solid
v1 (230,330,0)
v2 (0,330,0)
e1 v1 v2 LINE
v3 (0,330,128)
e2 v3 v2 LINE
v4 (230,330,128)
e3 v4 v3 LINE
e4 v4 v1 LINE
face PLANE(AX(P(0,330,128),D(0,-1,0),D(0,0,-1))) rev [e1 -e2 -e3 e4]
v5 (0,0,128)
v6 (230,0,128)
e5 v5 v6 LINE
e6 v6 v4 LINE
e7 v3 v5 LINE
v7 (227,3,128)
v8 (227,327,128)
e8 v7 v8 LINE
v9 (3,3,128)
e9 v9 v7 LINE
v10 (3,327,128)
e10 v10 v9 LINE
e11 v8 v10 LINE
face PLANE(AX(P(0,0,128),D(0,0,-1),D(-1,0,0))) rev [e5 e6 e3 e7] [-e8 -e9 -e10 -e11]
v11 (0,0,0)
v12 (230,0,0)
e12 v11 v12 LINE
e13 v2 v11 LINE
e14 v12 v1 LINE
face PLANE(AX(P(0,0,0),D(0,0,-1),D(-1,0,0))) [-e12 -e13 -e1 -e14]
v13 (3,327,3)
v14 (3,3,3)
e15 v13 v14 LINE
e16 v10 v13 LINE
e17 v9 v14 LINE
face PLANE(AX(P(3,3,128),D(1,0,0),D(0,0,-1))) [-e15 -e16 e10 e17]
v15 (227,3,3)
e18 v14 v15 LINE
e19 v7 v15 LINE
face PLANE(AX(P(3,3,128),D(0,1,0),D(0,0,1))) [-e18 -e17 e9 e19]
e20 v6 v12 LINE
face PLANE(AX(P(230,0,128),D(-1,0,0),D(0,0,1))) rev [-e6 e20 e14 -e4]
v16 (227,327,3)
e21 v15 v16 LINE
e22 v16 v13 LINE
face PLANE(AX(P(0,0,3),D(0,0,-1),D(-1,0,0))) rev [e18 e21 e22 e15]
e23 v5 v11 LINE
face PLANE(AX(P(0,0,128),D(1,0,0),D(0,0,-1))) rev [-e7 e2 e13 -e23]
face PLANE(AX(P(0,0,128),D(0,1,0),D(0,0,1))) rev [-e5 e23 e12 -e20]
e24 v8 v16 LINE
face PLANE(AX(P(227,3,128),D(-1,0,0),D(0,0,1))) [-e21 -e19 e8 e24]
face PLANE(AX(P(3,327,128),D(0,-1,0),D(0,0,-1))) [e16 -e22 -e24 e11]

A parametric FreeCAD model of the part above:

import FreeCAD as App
import Part
import Sketcher
Q = App.Units.Quantity

doc = App.newDocument("Part")
body = doc.addObject("PartDesign::Body", "Body")

# Sketch on XY plane
sketch1 = body.newObject("Sketcher::SketchObject", "Sketch")
sketch1.AttachmentSupport = (doc.getObject("XY_Plane"), [""])
sketch1.MapMode = "FlatFace"
sketch1.addGeometry(Part.LineSegment(App.Vector(0, 330, 0), App.Vector(0, 0, 0)), False)
sketch1.addGeometry(Part.LineSegment(App.Vector(0, 0, 0), App.Vector(230, 0, 0)), False)
sketch1.addGeometry(Part.LineSegment(App.Vector(230, 0, 0), App.Vector(230, 330, 0)), False)
sketch1.addGeometry(Part.LineSegment(App.Vector(230, 330, 0), App.Vector(0, 330, 0)), False)
sketch1.addGeometry(Part.LineSegment(App.Vector(227, 3, 0), App.Vector(3, 3, 0)), False)
sketch1.addGeometry(Part.LineSegment(App.Vector(3, 3, 0), App.Vector(3, 327, 0)), False)
sketch1.addGeometry(Part.LineSegment(App.Vector(3, 327, 0), App.Vector(227, 327, 0)), False)
sketch1.addGeometry(Part.LineSegment(App.Vector(227, 327, 0), App.Vector(227, 3, 0)), False)
sketch1.addConstraint(Sketcher.Constraint("Coincident", 0, 2, 1, 1))
sketch1.addConstraint(Sketcher.Constraint("Coincident", 1, 2, 2, 1))
sketch1.addConstraint(Sketcher.Constraint("Coincident", 2, 2, 3, 1))
sketch1.addConstraint(Sketcher.Constraint("Coincident", 3, 2, 0, 1))
sketch1.addConstraint(Sketcher.Constraint("Coincident", 4, 2, 5, 1))
sketch1.addConstraint(Sketcher.Constraint("Coincident", 5, 2, 6, 1))
sketch1.addConstraint(Sketcher.Constraint("Coincident", 6, 2, 7, 1))
sketch1.addConstraint(Sketcher.Constraint("Coincident", 7, 2, 4, 1))
sketch1.addConstraint(Sketcher.Constraint("Vertical", 0))
sketch1.addConstraint(Sketcher.Constraint("Horizontal", 1))
sketch1.addConstraint(Sketcher.Constraint("Vertical", 2))
sketch1.addConstraint(Sketcher.Constraint("Horizontal", 3))
sketch1.addConstraint(Sketcher.Constraint("Horizontal", 4))
sketch1.addConstraint(Sketcher.Constraint("Vertical", 5))
sketch1.addConstraint(Sketcher.Constraint("Horizontal", 6))
sketch1.addConstraint(Sketcher.Constraint("Vertical", 7))
sketch1.addConstraint(Sketcher.Constraint("Coincident", 0, 2, -1, 1))
sketch1.addConstraint(Sketcher.Constraint("DistanceX", 1, 1, 1, 2, Q("230 mm")))
sketch1.addConstraint(Sketcher.Constraint("DistanceX", 4, 2, 4, 1, Q("224 mm")))
sketch1.addConstraint(Sketcher.Constraint("DistanceY", 0, 2, 0, 1, Q("330 mm")))
sketch1.addConstraint(Sketcher.Constraint("DistanceY", 5, 1, 5, 2, Q("324 mm")))
sketch1.addConstraint(Sketcher.Constraint("DistanceX", -1, 1, 4, 2, Q("3 mm")))
sketch1.addConstraint(Sketcher.Constraint("DistanceY", -1, 1, 4, 2, Q("3 mm")))
pad1 = body.newObject("PartDesign::Pad", "Pad")
pad1.Profile = sketch1
pad1.Length = 128

# Sketch on XY plane
sketch2 = body.newObject("Sketcher::SketchObject", "Sketch001")
sketch2.AttachmentSupport = (doc.getObject("XY_Plane"), [""])
sketch2.MapMode = "FlatFace"
sketch2.addGeometry(Part.LineSegment(App.Vector(3, 327, 0), App.Vector(3, 3, 0)), False)
sketch2.addGeometry(Part.LineSegment(App.Vector(3, 3, 0), App.Vector(227, 3, 0)), False)
sketch2.addGeometry(Part.LineSegment(App.Vector(227, 3, 0), App.Vector(227, 327, 0)), False)
sketch2.addGeometry(Part.LineSegment(App.Vector(227, 327, 0), App.Vector(3, 327, 0)), False)
sketch2.addConstraint(Sketcher.Constraint("Coincident", 0, 2, 1, 1))
sketch2.addConstraint(Sketcher.Constraint("Coincident", 1, 2, 2, 1))
sketch2.addConstraint(Sketcher.Constraint("Coincident", 2, 2, 3, 1))
sketch2.addConstraint(Sketcher.Constraint("Coincident", 3, 2, 0, 1))
sketch2.addConstraint(Sketcher.Constraint("Vertical", 0))
sketch2.addConstraint(Sketcher.Constraint("Horizontal", 1))
sketch2.addConstraint(Sketcher.Constraint("Vertical", 2))
sketch2.addConstraint(Sketcher.Constraint("Horizontal", 3))
sketch2.addConstraint(Sketcher.Constraint("DistanceX", 1, 1, 1, 2, Q("224 mm")))
sketch2.addConstraint(Sketcher.Constraint("DistanceY", 0, 2, 0, 1, Q("324 mm")))
sketch2.addConstraint(Sketcher.Constraint("DistanceX", -1, 1, 0, 2, Q("3 mm")))
sketch2.addConstraint(Sketcher.Constraint("DistanceY", -1, 1, 0, 2, Q("3 mm")))
pad2 = body.newObject("PartDesign::Pad", "Pad001")
pad2.Profile = sketch2
pad2.Length = 3

doc.recompute()
